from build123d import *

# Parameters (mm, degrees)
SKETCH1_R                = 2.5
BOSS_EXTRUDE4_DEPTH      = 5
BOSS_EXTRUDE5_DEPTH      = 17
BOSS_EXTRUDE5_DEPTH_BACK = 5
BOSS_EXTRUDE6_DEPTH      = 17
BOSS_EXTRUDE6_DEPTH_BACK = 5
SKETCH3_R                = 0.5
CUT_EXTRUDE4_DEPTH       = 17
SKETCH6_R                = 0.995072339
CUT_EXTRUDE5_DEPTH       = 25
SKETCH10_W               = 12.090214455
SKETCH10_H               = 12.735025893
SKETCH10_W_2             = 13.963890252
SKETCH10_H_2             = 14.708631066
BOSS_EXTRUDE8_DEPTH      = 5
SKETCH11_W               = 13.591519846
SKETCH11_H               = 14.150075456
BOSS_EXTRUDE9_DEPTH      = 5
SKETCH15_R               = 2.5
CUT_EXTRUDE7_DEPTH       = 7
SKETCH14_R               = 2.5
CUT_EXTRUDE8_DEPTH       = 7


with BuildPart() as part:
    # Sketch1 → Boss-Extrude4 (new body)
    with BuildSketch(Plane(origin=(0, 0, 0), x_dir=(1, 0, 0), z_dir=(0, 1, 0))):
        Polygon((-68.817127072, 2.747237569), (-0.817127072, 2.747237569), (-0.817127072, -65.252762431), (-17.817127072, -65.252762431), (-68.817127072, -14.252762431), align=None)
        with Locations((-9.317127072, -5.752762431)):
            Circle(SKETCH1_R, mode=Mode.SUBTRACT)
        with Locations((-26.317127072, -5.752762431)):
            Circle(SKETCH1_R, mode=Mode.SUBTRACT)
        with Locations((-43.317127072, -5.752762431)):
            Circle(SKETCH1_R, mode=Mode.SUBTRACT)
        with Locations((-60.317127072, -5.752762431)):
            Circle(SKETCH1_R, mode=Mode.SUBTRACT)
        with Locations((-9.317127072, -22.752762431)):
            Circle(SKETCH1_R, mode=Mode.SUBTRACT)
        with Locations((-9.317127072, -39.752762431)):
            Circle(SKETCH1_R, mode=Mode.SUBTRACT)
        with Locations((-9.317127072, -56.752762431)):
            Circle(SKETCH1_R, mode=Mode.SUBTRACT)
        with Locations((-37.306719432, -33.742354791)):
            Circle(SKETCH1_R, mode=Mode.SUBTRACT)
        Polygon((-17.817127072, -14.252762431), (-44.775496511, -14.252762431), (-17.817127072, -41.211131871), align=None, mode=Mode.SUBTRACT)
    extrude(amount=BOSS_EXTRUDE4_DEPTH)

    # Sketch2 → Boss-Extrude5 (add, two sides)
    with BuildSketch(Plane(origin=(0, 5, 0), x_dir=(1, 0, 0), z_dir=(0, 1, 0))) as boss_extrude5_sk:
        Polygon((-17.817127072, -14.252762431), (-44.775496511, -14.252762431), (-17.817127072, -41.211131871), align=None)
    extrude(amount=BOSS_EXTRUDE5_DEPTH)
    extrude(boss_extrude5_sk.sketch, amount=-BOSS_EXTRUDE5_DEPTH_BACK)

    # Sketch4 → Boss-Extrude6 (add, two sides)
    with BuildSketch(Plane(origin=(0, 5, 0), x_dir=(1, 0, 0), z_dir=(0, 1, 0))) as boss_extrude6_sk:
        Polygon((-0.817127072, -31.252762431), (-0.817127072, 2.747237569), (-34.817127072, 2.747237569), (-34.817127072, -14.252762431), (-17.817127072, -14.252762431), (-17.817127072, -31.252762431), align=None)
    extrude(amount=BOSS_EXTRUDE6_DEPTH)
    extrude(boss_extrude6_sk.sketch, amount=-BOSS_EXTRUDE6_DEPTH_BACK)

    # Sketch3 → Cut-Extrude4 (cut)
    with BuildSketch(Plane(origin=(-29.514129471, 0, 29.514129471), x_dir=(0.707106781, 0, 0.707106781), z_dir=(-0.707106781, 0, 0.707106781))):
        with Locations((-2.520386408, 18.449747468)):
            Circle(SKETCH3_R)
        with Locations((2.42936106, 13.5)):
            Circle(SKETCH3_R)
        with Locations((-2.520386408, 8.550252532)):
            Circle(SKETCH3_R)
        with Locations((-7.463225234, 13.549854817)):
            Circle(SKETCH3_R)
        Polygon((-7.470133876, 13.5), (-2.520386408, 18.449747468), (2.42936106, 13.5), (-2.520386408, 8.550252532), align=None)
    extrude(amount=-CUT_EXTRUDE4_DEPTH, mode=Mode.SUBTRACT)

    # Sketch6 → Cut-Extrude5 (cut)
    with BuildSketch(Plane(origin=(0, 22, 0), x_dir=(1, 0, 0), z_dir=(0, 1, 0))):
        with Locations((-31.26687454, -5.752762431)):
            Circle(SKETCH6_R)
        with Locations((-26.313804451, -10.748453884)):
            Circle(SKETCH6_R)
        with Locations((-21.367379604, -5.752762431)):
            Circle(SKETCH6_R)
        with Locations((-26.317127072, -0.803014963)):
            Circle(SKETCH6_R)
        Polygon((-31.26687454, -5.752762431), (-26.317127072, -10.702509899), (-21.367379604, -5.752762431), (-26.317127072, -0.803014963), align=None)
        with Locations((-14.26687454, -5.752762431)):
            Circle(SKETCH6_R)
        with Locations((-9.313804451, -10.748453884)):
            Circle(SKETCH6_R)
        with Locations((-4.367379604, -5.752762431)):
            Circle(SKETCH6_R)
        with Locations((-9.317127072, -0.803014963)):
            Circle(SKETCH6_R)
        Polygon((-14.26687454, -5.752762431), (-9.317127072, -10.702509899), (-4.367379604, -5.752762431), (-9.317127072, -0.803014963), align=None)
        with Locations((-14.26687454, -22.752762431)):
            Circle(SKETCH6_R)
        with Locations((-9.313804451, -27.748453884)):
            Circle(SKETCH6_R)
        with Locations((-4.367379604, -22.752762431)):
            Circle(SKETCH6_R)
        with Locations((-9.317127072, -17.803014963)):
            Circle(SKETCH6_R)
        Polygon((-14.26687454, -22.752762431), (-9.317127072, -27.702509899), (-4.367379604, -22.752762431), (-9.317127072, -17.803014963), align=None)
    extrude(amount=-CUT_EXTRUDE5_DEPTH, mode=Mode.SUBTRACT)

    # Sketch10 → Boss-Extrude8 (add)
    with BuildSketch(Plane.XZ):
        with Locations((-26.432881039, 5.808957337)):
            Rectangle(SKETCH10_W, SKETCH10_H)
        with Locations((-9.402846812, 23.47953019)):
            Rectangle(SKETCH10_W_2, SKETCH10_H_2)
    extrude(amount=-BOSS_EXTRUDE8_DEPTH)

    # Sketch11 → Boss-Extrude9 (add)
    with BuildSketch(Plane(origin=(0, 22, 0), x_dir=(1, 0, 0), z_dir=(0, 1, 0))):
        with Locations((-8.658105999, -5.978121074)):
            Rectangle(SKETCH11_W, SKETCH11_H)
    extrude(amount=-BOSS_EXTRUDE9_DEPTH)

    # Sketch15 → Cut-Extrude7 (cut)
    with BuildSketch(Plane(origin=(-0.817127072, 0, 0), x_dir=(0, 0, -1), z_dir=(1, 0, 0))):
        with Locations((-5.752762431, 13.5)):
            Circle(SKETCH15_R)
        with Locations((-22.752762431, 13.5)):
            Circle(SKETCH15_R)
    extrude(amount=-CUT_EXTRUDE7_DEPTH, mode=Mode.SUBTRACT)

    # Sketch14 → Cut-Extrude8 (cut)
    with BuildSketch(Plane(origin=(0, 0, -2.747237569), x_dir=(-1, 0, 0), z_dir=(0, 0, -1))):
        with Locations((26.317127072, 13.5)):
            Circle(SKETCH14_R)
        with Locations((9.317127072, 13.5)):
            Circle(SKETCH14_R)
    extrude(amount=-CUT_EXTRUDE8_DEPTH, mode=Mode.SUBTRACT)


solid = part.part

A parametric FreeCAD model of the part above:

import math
import FreeCAD as App
import Part
import Sketcher
from FreeCAD import Vector
Q = App.Units.Quantity

doc = App.newDocument("Part")
body = doc.addObject("PartDesign::Body", "Body")

# Sketch on XZ plane
sketch1 = body.newObject("Sketcher::SketchObject", "Sketch")
sketch1.AttachmentSupport = (doc.getObject("XZ_Plane"), [""])
sketch1.MapMode = "FlatFace"
sketch1.addGeometry([
    Part.LineSegment(Vector(-0.8, -2.7, 0), Vector(-68.8, -2.7, 0)),  # 0
    Part.LineSegment(Vector(-68.8, -2.7, 0), Vector(-68.8, 14.3, 0)),  # 1
    Part.LineSegment(Vector(-68.8, 14.3, 0), Vector(-17.8, 65.3, 0)),  # 2
    Part.LineSegment(Vector(-17.8, 65.3, 0), Vector(-0.8, 65.3, 0)),  # 3
    Part.LineSegment(Vector(-0.8, 65.3, 0), Vector(-0.8, -2.7, 0)),  # 4
    Part.Circle(Vector(-9.3, 56.8, 0), Vector(0, 0, 1), 2.5),  # 5
    Part.Circle(Vector(-9.3, 39.8, 0), Vector(0, 0, 1), 2.5),  # 6
    Part.Circle(Vector(-37.3, 33.7, 0), Vector(0, 0, 1), 2.5),  # 7
    Part.Circle(Vector(-9.3, 22.8, 0), Vector(0, 0, 1), 2.5),  # 8
    Part.LineSegment(Vector(-17.8, 14.3, 0), Vector(-17.8, 41.2, 0)),  # 9
    Part.LineSegment(Vector(-17.8, 41.2, 0), Vector(-44.8, 14.3, 0)),  # 10
    Part.LineSegment(Vector(-44.8, 14.3, 0), Vector(-17.8, 14.3, 0)),  # 11
    Part.Circle(Vector(-9.3, 5.8, 0), Vector(0, 0, 1), 2.5),  # 12
    Part.Circle(Vector(-26.3, 5.8, 0), Vector(0, 0, 1), 2.5),  # 13
    Part.Circle(Vector(-43.3, 5.8, 0), Vector(0, 0, 1), 2.5),  # 14
    Part.Circle(Vector(-60.3, 5.8, 0), Vector(0, 0, 1), 2.5),  # 15
], False)
sketch1.addConstraint([
    Sketcher.Constraint("Coincident", 0, 2, 1, 1),
    Sketcher.Constraint("Coincident", 1, 2, 2, 1),
    Sketcher.Constraint("Coincident", 2, 2, 3, 1),
    Sketcher.Constraint("Coincident", 3, 2, 4, 1),
    Sketcher.Constraint("Coincident", 4, 2, 0, 1),
    Sketcher.Constraint("Coincident", 9, 2, 10, 1),
    Sketcher.Constraint("Coincident", 10, 2, 11, 1),
    Sketcher.Constraint("Coincident", 11, 2, 9, 1),
    Sketcher.Constraint("Horizontal", 0),
    Sketcher.Constraint("Vertical", 1),
    Sketcher.Constraint("Horizontal", 3),
    Sketcher.Constraint("Vertical", 4),
    Sketcher.Constraint("Vertical", 9),
    Sketcher.Constraint("Horizontal", 11),
    Sketcher.Constraint("Equal", 5, 6),
    Sketcher.Constraint("Equal", 6, 7),
    Sketcher.Constraint("Equal", 7, 8),
    Sketcher.Constraint("Equal", 8, 12),
    Sketcher.Constraint("Equal", 12, 13),
    Sketcher.Constraint("Equal", 13, 14),
    Sketcher.Constraint("Equal", 14, 15),
    Sketcher.Constraint("Parallel", 2, 10),
    Sketcher.Constraint("Horizontal", 12, 3, 13, 3),
    Sketcher.Constraint("Horizontal", 13, 3, 14, 3),
    Sketcher.Constraint("Horizontal", 14, 3, 15, 3),
    Sketcher.Constraint("Horizontal", 1, 2, 10, 2),
    Sketcher.Constraint("Vertical", 5, 3, 6, 3),
    Sketcher.Constraint("Vertical", 6, 3, 8, 3),
    Sketcher.Constraint("Vertical", 8, 3, 12, 3),
    Sketcher.Constraint("Vertical", 2, 2, 9, 2),
    Sketcher.Constraint("Equal", 3, 1),
    Sketcher.Constraint("Equal", 0, 4),
    Sketcher.Constraint("Diameter", 5, Q("5 mm")),
    Sketcher.Constraint("DistanceX", 0, 2, 0, 1, Q("68 mm")),
    Sketcher.Constraint("DistanceX", 3, 1, 3, 2, Q("17 mm")),
    Sketcher.Constraint("DistanceY", 6, 3, 5, 3, Q("17 mm")),
    Sketcher.Constraint("DistanceY", 8, 3, 6, 3, Q("17 mm")),
    Sketcher.Constraint("DistanceY", 12, 3, 8, 3, Q("17 mm")),
    Sketcher.Constraint("DistanceX", 13, 3, 12, 3, Q("17 mm")),
    Sketcher.Constraint("DistanceX", 14, 3, 13, 3, Q("17 mm")),
    Sketcher.Constraint("DistanceX", 15, 3, 14, 3, Q("17 mm")),
    Sketcher.Constraint("DistanceX", 0, 2, 15, 3, Q("8.5 mm")),
    Sketcher.Constraint("DistanceY", 0, 2, 15, 3, Q("8.5 mm")),
    Sketcher.Constraint("DistanceX", 11, 1, 11, 2, Q("26.958369 mm")),
    Sketcher.Constraint("DistanceX", 7, 3, -1, 1, Q("37.306719 mm")),
    Sketcher.Constraint("DistanceY", -1, 1, 9, 2, Q("41.211132 mm")),
    Sketcher.Constraint("DistanceX", 5, 3, -1, 1, Q("9.317127 mm")),
    Sketcher.Constraint("DistanceY", -1, 1, 7, 3, Q("33.742355 mm")),
])
pad1 = body.newObject("PartDesign::Pad", "Pad")
pad1.Profile = sketch1
pad1.Length = 5
pad1.Reversed = True

# Sketch on XZ plane
sketch2 = body.newObject("Sketcher::SketchObject", "Sketch001")
sketch2.AttachmentSupport = (doc.getObject("XZ_Plane"), [""])
sketch2.MapMode = "FlatFace"
sketch2.AttachmentOffset = App.Placement(Vector(0, 0, -5), App.Rotation())
sketch2.addGeometry([
    Part.LineSegment(Vector(-18, 14, 0), Vector(-45, 14, 0)),
    Part.LineSegment(Vector(-45, 14, 0), Vector(-18, 41, 0)),
    Part.LineSegment(Vector(-18, 41, 0), Vector(-18, 14, 0)),
], False)
sketch2.addConstraint([
    Sketcher.Constraint("Coincident", 0, 2, 1, 1),
    Sketcher.Constraint("Coincident", 1, 2, 2, 1),
    Sketcher.Constraint("Coincident", 2, 2, 0, 1),
    Sketcher.Constraint("Horizontal", 0),
    Sketcher.Constraint("Vertical", 2),
    Sketcher.Constraint("Equal", 0, 2),
    Sketcher.Constraint("DistanceX", 0, 2, 0, 1, Q("26.958369 mm")),
    Sketcher.Constraint("DistanceY", -1, 1, 1, 2, Q("41.211132 mm")),
    Sketcher.Constraint("DistanceX", 0, 2, -1, 1, Q("44.775497 mm")),
])
pad2 = body.newObject("PartDesign::Pad", "Pad001")
pad2.Profile = sketch2
pad2.Type = "TwoLengths"
pad2.Length = 17
pad2.Length2 = 5
pad2.Reversed = True

# Sketch on XZ plane
sketch3 = body.newObject("Sketcher::SketchObject", "Sketch002")
sketch3.AttachmentSupport = (doc.getObject("XZ_Plane"), [""])
sketch3.MapMode = "FlatFace"
sketch3.AttachmentOffset = App.Placement(Vector(0, 0, -5), App.Rotation())
sketch3.addGeometry([
    Part.LineSegment(Vector(-1, 31, 0), Vector(-1, -3, 0)),  # 0
    Part.LineSegment(Vector(-1, -3, 0), Vector(-35, -3, 0)),  # 1
    Part.LineSegment(Vector(-35, -3, 0), Vector(-35, 14, 0)),  # 2
    Part.LineSegment(Vector(-35, 14, 0), Vector(-18, 14, 0)),  # 3
    Part.LineSegment(Vector(-18, 14, 0), Vector(-18, 31, 0)),  # 4
    Part.LineSegment(Vector(-18, 31, 0), Vector(-1, 31, 0)),  # 5
], False)
sketch3.addConstraint([
    Sketcher.Constraint("Coincident", 0, 2, 1, 1),
    Sketcher.Constraint("Coincident", 1, 2, 2, 1),
    Sketcher.Constraint("Coincident", 2, 2, 3, 1),
    Sketcher.Constraint("Coincident", 3, 2, 4, 1),
    Sketcher.Constraint("Coincident", 4, 2, 5, 1),
    Sketcher.Constraint("Coincident", 5, 2, 0, 1),
    Sketcher.Constraint("Vertical", 0),
    Sketcher.Constraint("Horizontal", 1),
    Sketcher.Constraint("Vertical", 2),
    Sketcher.Constraint("Horizontal", 3),
    Sketcher.Constraint("Vertical", 4),
    Sketcher.Constraint("Horizontal", 5),
    Sketcher.Constraint("Equal", 3, 5),
    Sketcher.Constraint("Equal", 1, 0),
    Sketcher.Constraint("Equal", 5, 2),
    Sketcher.Constraint("DistanceX", 1, 2, 1, 1, Q("34 mm")),
    Sketcher.Constraint("DistanceX", 0, 2, -1, 1, Q("0.817127 mm")),
    Sketcher.Constraint("DistanceY", 0, 2, -1, 1, Q("2.747238 mm")),
])
pad3 = body.newObject("PartDesign::Pad", "Pad002")
pad3.Profile = sketch3
pad3.Type = "TwoLengths"
pad3.Length = 17
pad3.Length2 = 5
pad3.Reversed = True

# Sketch on an angled plane
sketch4 = body.newObject("Sketcher::SketchObject", "Sketch003")
sketch4.Placement = App.Placement(Vector(-29.514129, 0, 29.514129), App.Rotation(Vector(0.707106781, 0, 0.707106781), Vector(0, 0.999999999, 0), Vector(-0.707106781, 0, 0.707106781), "ZXY"))
sketch4.addGeometry([
    Part.ArcOfCircle(Part.Circle(Vector(-2.5, 18.4, 0), Vector(0, 0, 1), 0.5), math.radians(-45), math.radians(225)),  # 0
    Part.LineSegment(Vector(-2.9, 18.1, 0), Vector(-7.1, 13.9, 0)),  # 1
    Part.ArcOfCircle(Part.Circle(Vector(-7.5, 13.5, 0), Vector(0, 0, 1), 0.5), math.radians(42), math.radians(310)),  # 2
    Part.LineSegment(Vector(-7.1, 13.2, 0), Vector(-2.9, 8.9, 0)),  # 3
    Part.ArcOfCircle(Part.Circle(Vector(-2.5, 8.6, 0), Vector(0, 0, 1), 0.5), math.radians(135), math.radians(405)),  # 4
    Part.LineSegment(Vector(-2.2, 8.9, 0), Vector(2.1, 13.1, 0)),  # 5
    Part.ArcOfCircle(Part.Circle(Vector(2.4, 13.5, 0), Vector(0, 0, 1), 0.5), math.radians(-135), math.radians(135)),  # 6
    Part.LineSegment(Vector(2.1, 13.9, 0), Vector(-2.2, 18.1, 0)),  # 7
], False)
sketch4.addConstraint([
    Sketcher.Constraint("Coincident", 0, 2, 1, 1),
    Sketcher.Constraint("Coincident", 1, 2, 2, 1),
    Sketcher.Constraint("Coincident", 2, 2, 3, 1),
    Sketcher.Constraint("Coincident", 3, 2, 4, 1),
    Sketcher.Constraint("Coincident", 4, 2, 5, 1),
    Sketcher.Constraint("Coincident", 5, 2, 6, 1),
    Sketcher.Constraint("Coincident", 6, 2, 7, 1),
    Sketcher.Constraint("Coincident", 7, 2, 0, 1),
    Sketcher.Constraint("Equal", 0, 2),
    Sketcher.Constraint("Equal", 2, 4),
    Sketcher.Constraint("Equal", 4, 6),
    Sketcher.Constraint("Perpendicular", 1, 3),
    Sketcher.Constraint("Perpendicular", 3, 5),
    Sketcher.Constraint("Perpendicular", 5, 7),
    Sketcher.Constraint("Horizontal", 3, 2, 4, 2),
    Sketcher.Constraint("Horizontal", 0, 2, 7, 2),
    Sketcher.Constraint("Vertical", 0, 3, 4, 3),
    Sketcher.Constraint("Vertical", 0, 2, 3, 2),
    Sketcher.Constraint("Vertical", 5, 2, 6, 2),
    Sketcher.Constraint("Equal", 5, 7),
    Sketcher.Constraint("Radius", 0, Q("0.5 mm")),
    Sketcher.Constraint("Distance", 5, Q("6 mm")),
    Sketcher.Constraint("DistanceY", -1, 1, 6, 3, Q("13.5 mm")),
    Sketcher.Constraint("DistanceX", 0, 2, 6, 3, Q("5.303301 mm")),
    Sketcher.Constraint("Distance", 3, Q("6.031981 mm")),
    Sketcher.Constraint("DistanceX", -1, 1, 6, 3, Q("2.429361 mm")),
    Sketcher.Constraint("DistanceX", 1, 2, -1, 1, Q("7.088851 mm")),
    Sketcher.Constraint("DistanceY", -1, 1, 2, 2, Q("13.169061 mm")),
])
pocket1 = body.newObject("PartDesign::Pocket", "Pocket")
pocket1.Profile = sketch4
pocket1.Length = 17

# Sketch on XZ plane
sketch5 = body.newObject("Sketcher::SketchObject", "Sketch004")
sketch5.AttachmentSupport = (doc.getObject("XZ_Plane"), [""])
sketch5.MapMode = "FlatFace"
sketch5.AttachmentOffset = App.Placement(Vector(0, 0, -22), App.Rotation())
sketch5.addGeometry([
    Part.LineSegment(Vector(-30.6, 6.5, 0), Vector(-27, 10, 0)),  # 0
    Part.ArcOfCircle(Part.Circle(Vector(-26.3, 10.7, 0), Vector(0, 0, 1), 1), math.radians(-47), math.radians(227)),  # 1
    Part.LineSegment(Vector(-25.6, 10, 0), Vector(-22.1, 6.5, 0)),  # 2
    Part.ArcOfCircle(Part.Circle(Vector(-21.4, 5.8, 0), Vector(0, 0, 1), 1), math.radians(-135), math.radians(135)),  # 3
    Part.LineSegment(Vector(-22.1, 5, 0), Vector(-25.6, 1.5, 0)),  # 4
    Part.ArcOfCircle(Part.Circle(Vector(-26.3, 0.8, 0), Vector(0, 0, 1), 1), math.radians(135), math.radians(405)),  # 5
    Part.LineSegment(Vector(-27, 1.5, 0), Vector(-30.6, 5, 0)),  # 6
    Part.ArcOfCircle(Part.Circle(Vector(-31.3, 5.8, 0), Vector(0, 0, 1), 1), math.radians(45), math.radians(315)),  # 7
    Part.LineSegment(Vector(-13.6, 6.5, 0), Vector(-10, 10, 0)),  # 8
    Part.ArcOfCircle(Part.Circle(Vector(-9.3, 10.7, 0), Vector(0, 0, 1), 1), math.radians(-47), math.radians(227)),  # 9
    Part.LineSegment(Vector(-8.6, 10, 0), Vector(-5.1, 6.5, 0)),  # 10
    Part.ArcOfCircle(Part.Circle(Vector(-4.4, 5.8, 0), Vector(0, 0, 1), 1), math.radians(-135), math.radians(135)),  # 11
    Part.LineSegment(Vector(-5.1, 5, 0), Vector(-8.6, 1.5, 0)),  # 12
    Part.ArcOfCircle(Part.Circle(Vector(-9.3, 0.8, 0), Vector(0, 0, 1), 1), math.radians(135), math.radians(405)),  # 13
    Part.LineSegment(Vector(-10, 1.5, 0), Vector(-13.6, 5, 0)),  # 14
    Part.ArcOfCircle(Part.Circle(Vector(-14.3, 5.8, 0), Vector(0, 0, 1), 1), math.radians(45), math.radians(315)),  # 15
    Part.LineSegment(Vector(-13.6, 23.5, 0), Vector(-10, 27, 0)),  # 16
    Part.ArcOfCircle(Part.Circle(Vector(-9.3, 27.7, 0), Vector(0, 0, 1), 1), math.radians(-47), math.radians(227)),  # 17
    Part.LineSegment(Vector(-8.6, 27, 0), Vector(-5.1, 23.5, 0)),  # 18
    Part.ArcOfCircle(Part.Circle(Vector(-4.4, 22.8, 0), Vector(0, 0, 1), 1), math.radians(-135), math.radians(135)),  # 19
    Part.LineSegment(Vector(-5.1, 22, 0), Vector(-8.6, 18.5, 0)),  # 20
    Part.ArcOfCircle(Part.Circle(Vector(-9.3, 17.8, 0), Vector(0, 0, 1), 1), math.radians(135), math.radians(405)),  # 21
    Part.LineSegment(Vector(-10, 18.5, 0), Vector(-13.6, 22, 0)),  # 22
    Part.ArcOfCircle(Part.Circle(Vector(-14.3, 22.8, 0), Vector(0, 0, 1), 1), math.radians(45), math.radians(315)),  # 23
], False)
sketch5.addConstraint([
    Sketcher.Constraint("Coincident", 0, 2, 1, 2),
    Sketcher.Constraint("Coincident", 1, 1, 2, 1),
    Sketcher.Constraint("Coincident", 2, 2, 3, 2),
    Sketcher.Constraint("Coincident", 3, 1, 4, 1),
    Sketcher.Constraint("Coincident", 4, 2, 5, 2),
    Sketcher.Constraint("Coincident", 5, 1, 6, 1),
    Sketcher.Constraint("Coincident", 6, 2, 7, 2),
    Sketcher.Constraint("Coincident", 7, 1, 0, 1),
    Sketcher.Constraint("Coincident", 8, 2, 9, 2),
    Sketcher.Constraint("Coincident", 9, 1, 10, 1),
    Sketcher.Constraint("Coincident", 10, 2, 11, 2),
    Sketcher.Constraint("Coincident", 11, 1, 12, 1),
    Sketcher.Constraint("Coincident", 12, 2, 13, 2),
    Sketcher.Constraint("Coincident", 13, 1, 14, 1),
    Sketcher.Constraint("Coincident", 14, 2, 15, 2),
    Sketcher.Constraint("Coincident", 15, 1, 8, 1),
    Sketcher.Constraint("Coincident", 16, 2, 17, 2),
    Sketcher.Constraint("Coincident", 17, 1, 18, 1),
    Sketcher.Constraint("Coincident", 18, 2, 19, 2),
    Sketcher.Constraint("Coincident", 19, 1, 20, 1),
    Sketcher.Constraint("Coincident", 20, 2, 21, 2),
    Sketcher.Constraint("Coincident", 21, 1, 22, 1),
    Sketcher.Constraint("Coincident", 22, 2, 23, 2),
    Sketcher.Constraint("Coincident", 23, 1, 16, 1),
    Sketcher.Constraint("Equal", 1, 3),
    Sketcher.Constraint("Equal", 3, 5),
    Sketcher.Constraint("Equal", 5, 7),
    Sketcher.Constraint("Equal", 7, 9),
    Sketcher.Constraint("Equal", 9, 11),
    Sketcher.Constraint("Equal", 11, 13),
    Sketcher.Constraint("Equal", 13, 15),
    Sketcher.Constraint("Equal", 15, 17),
    Sketcher.Constraint("Equal", 17, 19),
    Sketcher.Constraint("Equal", 19, 21),
    Sketcher.Constraint("Equal", 21, 23),
    Sketcher.Constraint("Perpendicular", 0, 2),
    Sketcher.Constraint("Perpendicular", 2, 4),
    Sketcher.Constraint("Perpendicular", 4, 6),
    Sketcher.Constraint("Perpendicular", 6, 8),
    Sketcher.Constraint("Perpendicular", 8, 10),
    Sketcher.Constraint("Perpendicular", 10, 12),
    Sketcher.Constraint("Perpendicular", 12, 14),
    Sketcher.Constraint("Perpendicular", 14, 16),
    Sketcher.Constraint("Perpendicular", 16, 18),
    Sketcher.Constraint("Perpendicular", 18, 20),
    Sketcher.Constraint("Perpendicular", 20, 22),
    Sketcher.Constraint("Horizontal", 3, 3, 7, 3),
    Sketcher.Constraint("Horizontal", 1, 3, 9, 3),
    Sketcher.Constraint("Horizontal", 7, 3, 11, 3),
    Sketcher.Constraint("Horizontal", 5, 3, 13, 3),
    Sketcher.Constraint("Horizontal", 11, 3, 15, 3),
    Sketcher.Constraint("Horizontal", 19, 3, 23, 3),
    Sketcher.Constraint("Horizontal", 4, 2, 5, 1),
    Sketcher.Constraint("Horizontal", 3, 1, 6, 2),
    Sketcher.Constraint("Horizontal", 2, 2, 7, 1),
    Sketcher.Constraint("Horizontal", 0, 2, 8, 2),
    Sketcher.Constraint("Horizontal", 1, 1, 9, 1),
    Sketcher.Constraint("Horizontal", 7, 1, 10, 2),
    Sketcher.Constraint("Horizontal", 6, 2, 11, 1),
    Sketcher.Constraint("Horizontal", 5, 1, 12, 2),
    Sketcher.Constraint("Horizontal", 12, 2, 13, 1),
    Sketcher.Constraint("Horizontal", 11, 1, 14, 2),
    Sketcher.Constraint("Horizontal", 20, 2, 21, 1),
    Sketcher.Constraint("Horizontal", 19, 1, 22, 2),
    Sketcher.Constraint("Horizontal", 18, 2, 23, 1),
    Sketcher.Constraint("Vertical", 9, 3, 17, 3),
    Sketcher.Constraint("Vertical", 11, 3, 19, 3),
    Sketcher.Constraint("Vertical", 13, 3, 21, 3),
    Sketcher.Constraint("Vertical", 2, 2, 3, 1),
    Sketcher.Constraint("Vertical", 8, 2, 16, 2),
    Sketcher.Constraint("Vertical", 11, 1, 18, 2),
    Sketcher.Constraint("Vertical", 18, 2, 19, 1),
    Sketcher.Constraint("Vertical", 12, 2, 20, 2),
    Sketcher.Constraint("Equal", 4, 6),
    Sketcher.Constraint("DistanceX", 1, 3, 9, 3, Q("17 mm")),
    Sketcher.Constraint("DistanceY", 9, 3, 17, 3, Q("17 mm")),
    Sketcher.Constraint("Radius", 1, Q("0.995072 mm")),
    Sketcher.Constraint("Distance", 0, Q("5.045149 mm")),
    Sketcher.Constraint("DistanceX", 3, 3, -1, 1, Q("21.36738 mm")),
    Sketcher.Constraint("DistanceY", -1, 1, 1, 1, Q("10.02063 mm")),
    Sketcher.Constraint("DistanceY", -1, 1, 3, 1, Q("5.04914 mm")),
    Sketcher.Constraint("DistanceX", 5, 1, -1, 1, Q("27.020749 mm")),
    Sketcher.Constraint("DistanceY", 3, 3, 1, 3, Q("4.995691 mm")),
    Sketcher.Constraint("DistanceY", 5, 3, 1, 3, Q("9.945439 mm")),
])
pocket2 = body.newObject("PartDesign::Pocket", "Pocket001")
pocket2.Profile = sketch5
pocket2.Length = 25
pocket2.Reversed = True

# Sketch on XZ plane
sketch6 = body.newObject("Sketcher::SketchObject", "Sketch005")
sketch6.AttachmentSupport = (doc.getObject("XZ_Plane"), [""])
sketch6.MapMode = "FlatFace"
sketch6.addGeometry([
    Part.LineSegment(Vector(-32, 12, 0), Vector(-32, -1, 0)),  # 0
    Part.LineSegment(Vector(-32, -1, 0), Vector(-20, -1, 0)),  # 1
    Part.LineSegment(Vector(-20, -1, 0), Vector(-20, 12, 0)),  # 2
    Part.LineSegment(Vector(-20, 12, 0), Vector(-32, 12, 0)),  # 3
    Part.LineSegment(Vector(-16, 31, 0), Vector(-16, 16, 0)),  # 4
    Part.LineSegment(Vector(-16, 16, 0), Vector(-2, 16, 0)),  # 5
    Part.LineSegment(Vector(-2, 16, 0), Vector(-2, 31, 0)),  # 6
    Part.LineSegment(Vector(-2, 31, 0), Vector(-16, 31, 0)),  # 7
], False)
sketch6.addConstraint([
    Sketcher.Constraint("Coincident", 0, 2, 1, 1),
    Sketcher.Constraint("Coincident", 1, 2, 2, 1),
    Sketcher.Constraint("Coincident", 2, 2, 3, 1),
    Sketcher.Constraint("Coincident", 3, 2, 0, 1),
    Sketcher.Constraint("Coincident", 4, 2, 5, 1),
    Sketcher.Constraint("Coincident", 5, 2, 6, 1),
    Sketcher.Constraint("Coincident", 6, 2, 7, 1),
    Sketcher.Constraint("Coincident", 7, 2, 4, 1),
    Sketcher.Constraint("Vertical", 0),
    Sketcher.Constraint("Horizontal", 1),
    Sketcher.Constraint("Vertical", 2),
    Sketcher.Constraint("Horizontal", 3),
    Sketcher.Constraint("Vertical", 4),
    Sketcher.Constraint("Horizontal", 5),
    Sketcher.Constraint("Vertical", 6),
    Sketcher.Constraint("Horizontal", 7),
    Sketcher.Constraint("DistanceX", 5, 1, 5, 2, Q("13.96389 mm")),
    Sketcher.Constraint("DistanceY", 4, 2, 4, 1, Q("14.708631 mm")),
    Sketcher.Constraint("DistanceX", 5, 2, -1, 1, Q("2.420902 mm")),
    Sketcher.Constraint("DistanceY", 1, 2, 6, 2, Q("31.392401 mm")),
    Sketcher.Constraint("DistanceX", 1, 1, 1, 2, Q("12.090214 mm")),
    Sketcher.Constraint("DistanceY", 0, 2, 0, 1, Q("12.735026 mm")),
    Sketcher.Constraint("DistanceX", 0, 2, -1, 1, Q("32.477988 mm")),
    Sketcher.Constraint("DistanceY", -1, 1, 2, 2, Q("12.17647 mm")),
])
pad4 = body.newObject("PartDesign::Pad", "Pad003")
pad4.Profile = sketch6
pad4.Length = 5
pad4.Reversed = True

# Sketch on XZ plane
sketch7 = body.newObject("Sketcher::SketchObject", "Sketch006")
sketch7.AttachmentSupport = (doc.getObject("XZ_Plane"), [""])
sketch7.MapMode = "FlatFace"
sketch7.AttachmentOffset = App.Placement(Vector(0, 0, -22), App.Rotation())
sketch7.addGeometry([
    Part.LineSegment(Vector(-15, -1, 0), Vector(-15, 13, 0)),
    Part.LineSegment(Vector(-15, 13, 0), Vector(-2, 13, 0)),
    Part.LineSegment(Vector(-2, 13, 0), Vector(-2, -1, 0)),
    Part.LineSegment(Vector(-2, -1, 0), Vector(-15, -1, 0)),
], False)
sketch7.addConstraint([
    Sketcher.Constraint("Coincident", 0, 2, 1, 1),
    Sketcher.Constraint("Coincident", 1, 2, 2, 1),
    Sketcher.Constraint("Coincident", 2, 2, 3, 1),
    Sketcher.Constraint("Coincident", 3, 2, 0, 1),
    Sketcher.Constraint("Vertical", 0),
    Sketcher.Constraint("Horizontal", 1),
    Sketcher.Constraint("Vertical", 2),
    Sketcher.Constraint("Horizontal", 3),
    Sketcher.Constraint("DistanceX", 1, 1, 1, 2, Q("13.59152 mm")),
    Sketcher.Constraint("DistanceY", 0, 1, 0, 2, Q("14.150075 mm")),
    Sketcher.Constraint("DistanceY", -1, 1, 0, 2, Q("13.053159 mm")),
    Sketcher.Constraint("DistanceX", 0, 2, -1, 1, Q("15.453866 mm")),
])
pad5 = body.newObject("PartDesign::Pad", "Pad004")
pad5.Profile = sketch7
pad5.Length = 5

# Sketch on YZ plane
sketch8 = body.newObject("Sketcher::SketchObject", "Sketch007")
sketch8.AttachmentSupport = (doc.getObject("YZ_Plane"), [""])
sketch8.MapMode = "FlatFace"
sketch8.AttachmentOffset = App.Placement(Vector(0, 0, -0.817127), App.Rotation())
sketch8.addGeometry([
    Part.Circle(Vector(13.5, 5.8, 0), Vector(0, 0, 1), 2.5),
    Part.Circle(Vector(13.5, 22.8, 0), Vector(0, 0, 1), 2.5),
], False)
sketch8.addConstraint([
    Sketcher.Constraint("Equal", 0, 1),
    Sketcher.Constraint("Vertical", 0, 3, 1, 3),
    Sketcher.Constraint("Diameter", 0, Q("5 mm")),
    Sketcher.Constraint("DistanceY", 0, 3, 1, 3, Q("17 mm")),
    Sketcher.Constraint("DistanceX", -1, 1, 0, 3, Q("13.5 mm")),
    Sketcher.Constraint("DistanceY", -1, 1, 0, 3, Q("5.752762 mm")),
])
pocket3 = body.newObject("PartDesign::Pocket", "Pocket002")
pocket3.Profile = sketch8
pocket3.Length = 7

# Sketch on XY plane
sketch9 = body.newObject("Sketcher::SketchObject", "Sketch008")
sketch9.AttachmentSupport = (doc.getObject("XY_Plane"), [""])
sketch9.MapMode = "FlatFace"
sketch9.AttachmentOffset = App.Placement(Vector(0, 0, -2.747238), App.Rotation())
sketch9.addGeometry([
    Part.Circle(Vector(-26.3, 13.5, 0), Vector(0, 0, 1), 2.5),
    Part.Circle(Vector(-9.3, 13.5, 0), Vector(0, 0, 1), 2.5),
], False)
sketch9.addConstraint([
    Sketcher.Constraint("Equal", 0, 1),
    Sketcher.Constraint("Horizontal", 0, 3, 1, 3),
    Sketcher.Constraint("Diameter", 0, Q("5 mm")),
    Sketcher.Constraint("DistanceX", 0, 3, 1, 3, Q("17 mm")),
    Sketcher.Constraint("DistanceY", -1, 1, 0, 3, Q("13.5 mm")),
    Sketcher.Constraint("DistanceX", 0, 3, -1, 1, Q("26.317127 mm")),
])
pocket4 = body.newObject("PartDesign::Pocket", "Pocket003")
pocket4.Profile = sketch9
pocket4.Length = 7
pocket4.Reversed = True

doc.recompute()
